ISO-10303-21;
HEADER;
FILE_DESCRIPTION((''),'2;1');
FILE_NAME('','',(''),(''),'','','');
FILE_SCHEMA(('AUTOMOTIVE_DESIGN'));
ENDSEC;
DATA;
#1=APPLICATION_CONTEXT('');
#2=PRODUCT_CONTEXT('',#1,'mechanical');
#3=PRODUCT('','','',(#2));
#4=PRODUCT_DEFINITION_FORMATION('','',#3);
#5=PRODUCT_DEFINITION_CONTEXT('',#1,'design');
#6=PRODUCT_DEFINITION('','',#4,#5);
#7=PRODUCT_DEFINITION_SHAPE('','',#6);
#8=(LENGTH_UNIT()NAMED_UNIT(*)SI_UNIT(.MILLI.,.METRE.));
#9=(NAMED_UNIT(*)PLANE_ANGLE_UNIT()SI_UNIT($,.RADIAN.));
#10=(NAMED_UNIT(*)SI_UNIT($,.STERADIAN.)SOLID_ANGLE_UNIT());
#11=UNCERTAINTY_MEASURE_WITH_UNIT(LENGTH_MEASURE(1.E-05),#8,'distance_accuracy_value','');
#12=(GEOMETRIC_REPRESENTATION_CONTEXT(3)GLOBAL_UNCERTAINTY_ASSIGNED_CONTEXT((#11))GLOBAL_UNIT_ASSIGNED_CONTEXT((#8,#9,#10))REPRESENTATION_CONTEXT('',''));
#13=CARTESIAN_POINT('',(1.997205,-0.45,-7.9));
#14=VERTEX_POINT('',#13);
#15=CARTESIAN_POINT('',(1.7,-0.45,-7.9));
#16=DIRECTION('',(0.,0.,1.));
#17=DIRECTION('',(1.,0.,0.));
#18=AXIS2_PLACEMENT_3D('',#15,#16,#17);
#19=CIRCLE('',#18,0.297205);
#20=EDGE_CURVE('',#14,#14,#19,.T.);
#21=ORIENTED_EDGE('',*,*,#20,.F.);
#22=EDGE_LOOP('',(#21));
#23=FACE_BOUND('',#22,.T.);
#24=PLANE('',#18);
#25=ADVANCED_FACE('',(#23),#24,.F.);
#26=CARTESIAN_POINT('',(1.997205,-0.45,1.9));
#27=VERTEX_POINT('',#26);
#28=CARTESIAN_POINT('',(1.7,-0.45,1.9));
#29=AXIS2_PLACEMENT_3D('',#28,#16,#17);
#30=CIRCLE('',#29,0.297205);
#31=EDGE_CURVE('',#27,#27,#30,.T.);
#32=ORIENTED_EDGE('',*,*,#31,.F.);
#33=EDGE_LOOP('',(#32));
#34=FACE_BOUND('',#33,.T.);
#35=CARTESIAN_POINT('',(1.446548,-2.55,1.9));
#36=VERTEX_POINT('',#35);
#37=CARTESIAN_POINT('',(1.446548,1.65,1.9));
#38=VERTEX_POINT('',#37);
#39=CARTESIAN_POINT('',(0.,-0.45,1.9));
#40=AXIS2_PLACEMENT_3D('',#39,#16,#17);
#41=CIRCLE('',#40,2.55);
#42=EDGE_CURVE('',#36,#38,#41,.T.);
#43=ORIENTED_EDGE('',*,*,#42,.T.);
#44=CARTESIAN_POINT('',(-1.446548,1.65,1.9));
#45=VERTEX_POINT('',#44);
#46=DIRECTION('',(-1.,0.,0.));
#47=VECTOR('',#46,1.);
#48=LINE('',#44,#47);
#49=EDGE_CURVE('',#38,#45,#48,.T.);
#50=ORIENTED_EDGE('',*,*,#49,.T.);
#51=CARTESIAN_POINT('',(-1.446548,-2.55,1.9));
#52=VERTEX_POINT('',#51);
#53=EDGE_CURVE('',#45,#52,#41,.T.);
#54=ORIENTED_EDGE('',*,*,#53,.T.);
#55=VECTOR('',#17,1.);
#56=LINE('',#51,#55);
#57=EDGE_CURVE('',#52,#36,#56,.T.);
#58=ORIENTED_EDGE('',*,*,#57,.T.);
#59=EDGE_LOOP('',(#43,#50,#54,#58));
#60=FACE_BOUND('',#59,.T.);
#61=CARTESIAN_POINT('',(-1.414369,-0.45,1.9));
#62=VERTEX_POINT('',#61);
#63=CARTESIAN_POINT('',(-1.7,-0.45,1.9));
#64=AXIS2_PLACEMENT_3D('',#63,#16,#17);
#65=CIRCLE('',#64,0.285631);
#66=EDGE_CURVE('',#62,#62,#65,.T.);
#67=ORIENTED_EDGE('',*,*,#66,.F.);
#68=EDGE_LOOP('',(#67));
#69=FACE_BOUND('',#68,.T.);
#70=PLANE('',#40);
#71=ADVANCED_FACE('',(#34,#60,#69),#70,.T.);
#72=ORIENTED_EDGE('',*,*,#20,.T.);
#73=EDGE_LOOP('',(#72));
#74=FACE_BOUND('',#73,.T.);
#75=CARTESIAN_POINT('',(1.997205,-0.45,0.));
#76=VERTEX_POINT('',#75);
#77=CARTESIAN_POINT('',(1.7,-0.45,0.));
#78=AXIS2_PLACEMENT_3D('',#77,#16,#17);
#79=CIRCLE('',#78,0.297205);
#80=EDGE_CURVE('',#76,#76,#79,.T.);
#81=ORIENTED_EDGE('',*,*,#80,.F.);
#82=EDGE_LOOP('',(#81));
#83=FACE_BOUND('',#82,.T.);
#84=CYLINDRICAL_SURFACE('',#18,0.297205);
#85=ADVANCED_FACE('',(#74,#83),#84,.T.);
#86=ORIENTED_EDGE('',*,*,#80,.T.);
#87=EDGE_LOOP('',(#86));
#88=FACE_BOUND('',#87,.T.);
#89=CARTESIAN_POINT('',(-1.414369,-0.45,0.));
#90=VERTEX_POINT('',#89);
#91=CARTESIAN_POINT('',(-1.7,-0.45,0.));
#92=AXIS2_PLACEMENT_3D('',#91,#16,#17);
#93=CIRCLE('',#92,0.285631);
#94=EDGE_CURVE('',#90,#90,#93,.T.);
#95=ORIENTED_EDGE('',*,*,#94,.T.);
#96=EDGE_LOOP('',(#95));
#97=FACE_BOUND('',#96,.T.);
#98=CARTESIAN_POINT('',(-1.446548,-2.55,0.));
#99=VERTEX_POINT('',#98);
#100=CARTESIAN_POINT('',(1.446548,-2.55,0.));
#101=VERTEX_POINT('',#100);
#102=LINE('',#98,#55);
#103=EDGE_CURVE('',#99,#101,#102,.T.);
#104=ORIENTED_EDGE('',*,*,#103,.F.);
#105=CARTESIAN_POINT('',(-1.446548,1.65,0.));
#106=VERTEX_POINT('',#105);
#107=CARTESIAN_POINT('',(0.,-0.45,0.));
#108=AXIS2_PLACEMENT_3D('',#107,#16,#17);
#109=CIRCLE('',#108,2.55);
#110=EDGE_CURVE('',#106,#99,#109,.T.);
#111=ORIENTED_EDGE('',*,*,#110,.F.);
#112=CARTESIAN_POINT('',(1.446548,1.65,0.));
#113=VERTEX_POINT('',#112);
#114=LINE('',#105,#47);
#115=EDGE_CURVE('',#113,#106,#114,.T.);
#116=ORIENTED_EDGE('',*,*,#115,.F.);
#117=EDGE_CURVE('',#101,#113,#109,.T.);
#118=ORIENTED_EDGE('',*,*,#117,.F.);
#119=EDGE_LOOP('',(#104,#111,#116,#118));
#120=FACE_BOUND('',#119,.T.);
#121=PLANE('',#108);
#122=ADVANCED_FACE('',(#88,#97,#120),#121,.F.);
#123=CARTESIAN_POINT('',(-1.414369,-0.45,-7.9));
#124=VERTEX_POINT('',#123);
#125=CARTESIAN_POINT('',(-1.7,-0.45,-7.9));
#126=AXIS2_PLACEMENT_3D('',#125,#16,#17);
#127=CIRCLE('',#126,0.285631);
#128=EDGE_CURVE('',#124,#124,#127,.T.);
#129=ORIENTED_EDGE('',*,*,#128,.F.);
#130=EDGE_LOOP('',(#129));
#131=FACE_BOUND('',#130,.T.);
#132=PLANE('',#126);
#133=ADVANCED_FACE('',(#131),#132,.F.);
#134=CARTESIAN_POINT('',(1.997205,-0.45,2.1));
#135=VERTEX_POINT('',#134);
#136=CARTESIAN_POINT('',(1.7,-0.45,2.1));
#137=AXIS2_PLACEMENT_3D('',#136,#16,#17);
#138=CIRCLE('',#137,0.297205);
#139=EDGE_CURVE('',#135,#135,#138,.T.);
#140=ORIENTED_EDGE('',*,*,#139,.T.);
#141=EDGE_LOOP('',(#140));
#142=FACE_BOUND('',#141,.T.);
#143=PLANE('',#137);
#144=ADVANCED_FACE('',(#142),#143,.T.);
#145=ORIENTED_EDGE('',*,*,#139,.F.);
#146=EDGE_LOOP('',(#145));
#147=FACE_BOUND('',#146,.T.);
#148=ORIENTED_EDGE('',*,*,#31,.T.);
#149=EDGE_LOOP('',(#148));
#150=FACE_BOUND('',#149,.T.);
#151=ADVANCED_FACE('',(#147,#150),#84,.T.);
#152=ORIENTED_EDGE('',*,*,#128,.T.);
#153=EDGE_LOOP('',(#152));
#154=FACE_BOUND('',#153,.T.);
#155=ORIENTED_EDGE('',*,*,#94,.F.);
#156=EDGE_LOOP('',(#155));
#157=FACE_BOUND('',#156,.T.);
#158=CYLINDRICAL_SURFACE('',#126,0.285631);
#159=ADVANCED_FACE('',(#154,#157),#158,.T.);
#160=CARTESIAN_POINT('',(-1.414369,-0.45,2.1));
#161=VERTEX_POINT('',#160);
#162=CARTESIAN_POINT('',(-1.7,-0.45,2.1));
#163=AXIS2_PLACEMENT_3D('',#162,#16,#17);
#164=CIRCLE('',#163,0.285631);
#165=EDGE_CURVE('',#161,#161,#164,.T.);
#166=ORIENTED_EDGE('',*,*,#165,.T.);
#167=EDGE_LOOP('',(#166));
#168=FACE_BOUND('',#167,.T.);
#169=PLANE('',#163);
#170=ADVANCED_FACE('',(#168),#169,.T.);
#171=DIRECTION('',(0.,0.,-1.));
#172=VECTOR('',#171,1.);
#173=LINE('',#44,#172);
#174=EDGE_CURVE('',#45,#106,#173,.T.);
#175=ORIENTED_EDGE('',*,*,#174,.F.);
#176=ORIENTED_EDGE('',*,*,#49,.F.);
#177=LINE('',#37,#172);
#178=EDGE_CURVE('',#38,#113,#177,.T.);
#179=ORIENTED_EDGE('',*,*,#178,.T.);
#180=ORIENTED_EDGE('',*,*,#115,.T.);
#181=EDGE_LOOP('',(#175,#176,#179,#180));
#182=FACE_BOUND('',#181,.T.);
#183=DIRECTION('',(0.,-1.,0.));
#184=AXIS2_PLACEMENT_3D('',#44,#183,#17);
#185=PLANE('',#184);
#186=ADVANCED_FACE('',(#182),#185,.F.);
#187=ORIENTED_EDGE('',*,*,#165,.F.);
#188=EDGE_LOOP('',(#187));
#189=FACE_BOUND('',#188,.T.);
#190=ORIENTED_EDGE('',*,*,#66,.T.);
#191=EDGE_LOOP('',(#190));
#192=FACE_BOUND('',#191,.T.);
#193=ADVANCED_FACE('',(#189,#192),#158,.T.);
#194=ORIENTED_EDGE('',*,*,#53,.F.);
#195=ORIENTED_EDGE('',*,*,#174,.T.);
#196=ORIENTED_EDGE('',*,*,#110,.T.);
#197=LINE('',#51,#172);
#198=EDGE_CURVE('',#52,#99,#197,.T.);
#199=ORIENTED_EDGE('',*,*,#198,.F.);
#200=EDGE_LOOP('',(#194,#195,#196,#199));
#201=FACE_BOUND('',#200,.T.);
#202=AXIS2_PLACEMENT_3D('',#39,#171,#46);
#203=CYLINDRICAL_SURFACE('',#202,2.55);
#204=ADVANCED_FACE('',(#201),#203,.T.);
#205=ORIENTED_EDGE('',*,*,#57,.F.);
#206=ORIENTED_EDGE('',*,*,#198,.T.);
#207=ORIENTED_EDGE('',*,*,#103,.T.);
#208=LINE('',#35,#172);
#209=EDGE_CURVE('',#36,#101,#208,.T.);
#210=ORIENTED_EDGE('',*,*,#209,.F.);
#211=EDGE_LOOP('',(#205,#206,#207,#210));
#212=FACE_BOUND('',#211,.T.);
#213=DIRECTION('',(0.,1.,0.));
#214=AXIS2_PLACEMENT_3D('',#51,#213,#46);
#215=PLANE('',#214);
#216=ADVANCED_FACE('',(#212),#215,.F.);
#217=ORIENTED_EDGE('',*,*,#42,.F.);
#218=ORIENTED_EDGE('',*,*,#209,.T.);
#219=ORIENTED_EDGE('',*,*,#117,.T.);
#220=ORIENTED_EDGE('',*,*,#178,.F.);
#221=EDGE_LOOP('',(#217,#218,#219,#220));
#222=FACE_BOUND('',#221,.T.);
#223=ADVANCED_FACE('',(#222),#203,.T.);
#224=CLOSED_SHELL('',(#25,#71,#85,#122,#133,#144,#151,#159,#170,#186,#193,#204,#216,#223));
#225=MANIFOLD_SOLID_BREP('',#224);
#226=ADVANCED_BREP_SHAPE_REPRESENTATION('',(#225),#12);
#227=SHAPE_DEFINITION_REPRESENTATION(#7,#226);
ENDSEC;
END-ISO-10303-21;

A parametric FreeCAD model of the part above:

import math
import FreeCAD as App
import Part
import Sketcher
Q = App.Units.Quantity

doc = App.newDocument("Part")
body = doc.addObject("PartDesign::Body", "Body")

# Sketch on XY plane
sketch1 = body.newObject("Sketcher::SketchObject", "Sketch")
sketch1.AttachmentSupport = (doc.getObject("XY_Plane"), [""])
sketch1.MapMode = "FlatFace"
sketch1.addGeometry(Part.LineSegment(App.Vector(-1.4, -2.5, 0), App.Vector(1.4, -2.5, 0)), False)
sketch1.addGeometry(Part.ArcOfCircle(Part.Circle(App.Vector(0, -0.5, 0), App.Vector(0, 0, 1), 2.5), math.radians(-55), math.radians(55)), False)
sketch1.addGeometry(Part.LineSegment(App.Vector(1.4, 1.6, 0), App.Vector(-1.4, 1.6, 0)), False)
sketch1.addGeometry(Part.ArcOfCircle(Part.Circle(App.Vector(0, -0.5, 0), App.Vector(0, 0, 1), 2.5), math.radians(125), math.radians(235)), False)
sketch1.addConstraint(Sketcher.Constraint("Coincident", 0, 2, 1, 1))
sketch1.addConstraint(Sketcher.Constraint("Coincident", 1, 2, 2, 1))
sketch1.addConstraint(Sketcher.Constraint("Coincident", 2, 2, 3, 1))
sketch1.addConstraint(Sketcher.Constraint("Coincident", 3, 2, 0, 1))
sketch1.addConstraint(Sketcher.Constraint("Horizontal", 0))
sketch1.addConstraint(Sketcher.Constraint("Horizontal", 2))
sketch1.addConstraint(Sketcher.Constraint("Coincident", 3, 3, 1, 3))
sketch1.addConstraint(Sketcher.Constraint("Equal", 1, 3))
sketch1.addConstraint(Sketcher.Constraint("PointOnObject", 1, 3, -2))
sketch1.addConstraint(Sketcher.Constraint("Vertical", 0, 2, 1, 2))
sketch1.addConstraint(Sketcher.Constraint("Radius", 1, Q("2.55 mm")))
sketch1.addConstraint(Sketcher.Constraint("DistanceY", 0, 2, 1, 3, Q("2.1 mm")))
sketch1.addConstraint(Sketcher.Constraint("DistanceY", 1, 3, -1, 1, Q("0.45 mm")))
pad1 = body.newObject("PartDesign::Pad", "Pad")
pad1.Profile = sketch1
pad1.Length = 1.9

# Sketch on XY plane
sketch2 = body.newObject("Sketcher::SketchObject", "Sketch001")
sketch2.AttachmentSupport = (doc.getObject("XY_Plane"), [""])
sketch2.MapMode = "FlatFace"
sketch2.AttachmentOffset = App.Placement(App.Vector(0, 0, 2.1), App.Rotation())
sketch2.addGeometry(Part.Circle(App.Vector(1.7, -0.45, 0), App.Vector(0, 0, 1), 0.3), False)
sketch2.addGeometry(Part.Circle(App.Vector(-1.7, -0.45, 0), App.Vector(0, 0, 1), 0.29), False)
sketch2.addConstraint(Sketcher.Constraint("Symmetric", 0, 3, 1, 3, -2))
sketch2.addConstraint(Sketcher.Constraint("DistanceX", -1, 1, 0, 3, Q("1.7 mm")))
sketch2.addConstraint(Sketcher.Constraint("Diameter", 0, Q("0.594411 mm")))
sketch2.addConstraint(Sketcher.Constraint("Diameter", 1, Q("0.571261 mm")))
sketch2.addConstraint(Sketcher.Constraint("DistanceY", 0, 3, -1, 1, Q("0.45 mm")))
pad2 = body.newObject("PartDesign::Pad", "Pad001")
pad2.Profile = sketch2
pad2.Length = 10
pad2.Reversed = True

doc.recompute()
